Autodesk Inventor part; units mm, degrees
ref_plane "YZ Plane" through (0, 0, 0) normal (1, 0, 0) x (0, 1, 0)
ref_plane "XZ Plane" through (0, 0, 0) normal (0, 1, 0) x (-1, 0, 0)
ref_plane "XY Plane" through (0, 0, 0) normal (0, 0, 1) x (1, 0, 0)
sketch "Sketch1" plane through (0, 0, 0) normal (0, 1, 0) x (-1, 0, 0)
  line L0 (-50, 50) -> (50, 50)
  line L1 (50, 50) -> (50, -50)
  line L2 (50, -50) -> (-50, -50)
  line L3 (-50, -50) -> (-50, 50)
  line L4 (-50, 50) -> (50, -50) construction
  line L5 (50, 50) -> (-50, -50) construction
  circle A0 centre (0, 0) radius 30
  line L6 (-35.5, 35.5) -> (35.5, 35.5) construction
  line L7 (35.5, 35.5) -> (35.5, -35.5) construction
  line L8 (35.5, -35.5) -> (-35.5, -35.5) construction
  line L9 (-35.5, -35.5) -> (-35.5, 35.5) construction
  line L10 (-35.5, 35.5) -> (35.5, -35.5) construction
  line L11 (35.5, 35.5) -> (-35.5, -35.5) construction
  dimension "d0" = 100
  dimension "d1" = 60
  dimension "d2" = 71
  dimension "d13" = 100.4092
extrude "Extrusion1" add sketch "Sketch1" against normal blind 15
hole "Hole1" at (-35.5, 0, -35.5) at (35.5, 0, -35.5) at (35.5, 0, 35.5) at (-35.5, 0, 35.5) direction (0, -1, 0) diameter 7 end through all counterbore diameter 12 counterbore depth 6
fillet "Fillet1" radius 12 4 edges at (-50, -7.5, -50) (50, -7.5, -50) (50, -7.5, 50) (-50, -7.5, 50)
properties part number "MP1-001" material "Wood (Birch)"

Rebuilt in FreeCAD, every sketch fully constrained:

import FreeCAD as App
import Part
import Sketcher

V = App.Vector
Q = App.Units.Quantity


def edges_at(feature, points):
    """Names of the edges that pass closest to the given points."""
    edges = feature.Shape.Edges
    near = lambda p: min(range(len(edges)), key=lambda i: edges[i].distToShape(Part.Vertex(*p))[0])
    return sorted({f"Edge{near(p) + 1}" for p in points})


def add_polygon(sketch, points):
    """Adds a closed chain of lines whose ends are joined by coincident constraints."""
    first, n = sketch.GeometryCount, len(points)
    for a, b in zip(points, points[1:] + points[:1]):
        sketch.addGeometry(Part.LineSegment(App.Vector(*a, 0), App.Vector(*b, 0)), False)
    for i in range(n):
        sketch.addConstraint(Sketcher.Constraint("Coincident", first + i, 2, first + (i + 1) % n, 1))

doc = App.newDocument("Part")
body = doc.addObject("PartDesign::Body", "Body")

sketch1 = body.newObject("Sketcher::SketchObject", "Sketch")
sketch1.AttachmentSupport = (doc.getObject("XZ_Plane"), [""])
sketch1.MapMode = "FlatFace"
add_polygon(sketch1, [(-50, 50), (50, 50), (50, -50), (-50, -50)])
sketch1.addGeometry(Part.Circle(V(0, 0, 0), V(0, 0, 1), 30), False)
sketch1.addConstraint([
    Sketcher.Constraint("Horizontal", 0),
    Sketcher.Constraint("Vertical", 1),
    Sketcher.Constraint("Horizontal", 2),
    Sketcher.Constraint("Vertical", 3),
    Sketcher.Constraint("Coincident", 4, 3, -1, 1),
    Sketcher.Constraint("Symmetric", 0, 2, 2, 2, -1, 1),
    Sketcher.Constraint("Equal", 2, 1),
    Sketcher.Constraint("Diameter", 4, Q("60 mm")),
    Sketcher.Constraint("DistanceX", 0, 1, 0, 2, Q("100 mm")),
])
pad1 = body.newObject("PartDesign::Pad", "Pad")
pad1.Profile = sketch1
pad1.Length = 15

sketch2 = body.newObject("Sketcher::SketchObject", "Sketch001")
sketch2.AttachmentSupport = (doc.getObject("XZ_Plane"), [""])
sketch2.MapMode = "FlatFace"
sketch2.addGeometry([
    Part.Circle(V(-35.5, -35.5, 0), V(0, 0, 1), 3.5),
    Part.Circle(V(35.5, -35.5, 0), V(0, 0, 1), 3.5),
    Part.Circle(V(35.5, 35.5, 0), V(0, 0, 1), 3.5),
    Part.Circle(V(-35.5, 35.5, 0), V(0, 0, 1), 3.5),
], False)
sketch2.addConstraint([
    Sketcher.Constraint("Equal", 0, 1),
    Sketcher.Constraint("Equal", 1, 2),
    Sketcher.Constraint("Equal", 2, 3),
    Sketcher.Constraint("Symmetric", 0, 3, 2, 3, -1, 1),
    Sketcher.Constraint("Symmetric", 1, 3, 3, 3, -1, 1),
    Sketcher.Constraint("Symmetric", 0, 3, 1, 3, -2),
    Sketcher.Constraint("Diameter", 0, Q("7 mm")),
    Sketcher.Constraint("DistanceX", 0, 3, 1, 3, Q("71 mm")),
    Sketcher.Constraint("DistanceY", 1, 3, 2, 3, Q("71 mm")),
])
doc.recompute()
hole = body.newObject("PartDesign::Hole", "Hole")
hole.Profile = sketch2
hole.ThreadType = "None"
hole.Diameter = 7
hole.DepthType = "ThroughAll"
hole.HoleCutType = "Counterbore"
hole.HoleCutDiameter = 12
hole.HoleCutDepth = 6
hole.Reversed = True
doc.recompute()

fillet = body.newObject("PartDesign::Fillet", "Fillet")
fillet.Base = (hole, edges_at(hole, [
    (-50, -7.5, -50),
    (50, -7.5, -50),
    (50, -7.5, 50),
    (-50, -7.5, 50),
]))
fillet.Radius = 12

doc.recompute()
